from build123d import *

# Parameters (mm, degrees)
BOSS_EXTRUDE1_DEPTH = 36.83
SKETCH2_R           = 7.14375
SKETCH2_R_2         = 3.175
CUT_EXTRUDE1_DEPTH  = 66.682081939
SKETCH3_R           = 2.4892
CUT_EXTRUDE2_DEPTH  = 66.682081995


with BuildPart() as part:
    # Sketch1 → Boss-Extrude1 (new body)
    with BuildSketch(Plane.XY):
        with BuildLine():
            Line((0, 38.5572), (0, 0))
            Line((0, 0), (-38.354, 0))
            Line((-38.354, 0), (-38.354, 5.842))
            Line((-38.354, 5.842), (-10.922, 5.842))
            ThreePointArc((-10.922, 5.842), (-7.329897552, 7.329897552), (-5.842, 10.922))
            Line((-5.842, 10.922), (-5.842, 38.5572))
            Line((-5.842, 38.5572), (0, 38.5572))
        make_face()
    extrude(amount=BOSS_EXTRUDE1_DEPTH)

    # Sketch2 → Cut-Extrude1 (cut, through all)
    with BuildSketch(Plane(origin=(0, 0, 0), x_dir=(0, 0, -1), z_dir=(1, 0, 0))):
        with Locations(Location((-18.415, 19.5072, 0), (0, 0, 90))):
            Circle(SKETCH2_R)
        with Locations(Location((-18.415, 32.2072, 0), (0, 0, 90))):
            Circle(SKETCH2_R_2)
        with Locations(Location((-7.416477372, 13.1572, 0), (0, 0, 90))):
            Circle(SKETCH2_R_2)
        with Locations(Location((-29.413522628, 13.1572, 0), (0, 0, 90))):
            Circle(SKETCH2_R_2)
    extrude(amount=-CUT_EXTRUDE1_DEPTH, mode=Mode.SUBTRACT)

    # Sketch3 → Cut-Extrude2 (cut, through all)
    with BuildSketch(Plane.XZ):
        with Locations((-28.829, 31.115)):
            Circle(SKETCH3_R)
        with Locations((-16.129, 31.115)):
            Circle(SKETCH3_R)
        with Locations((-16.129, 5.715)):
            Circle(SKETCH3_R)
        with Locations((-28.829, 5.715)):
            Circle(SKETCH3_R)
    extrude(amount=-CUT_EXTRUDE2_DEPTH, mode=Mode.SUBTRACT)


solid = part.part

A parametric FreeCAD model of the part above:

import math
import FreeCAD as App
import Part
import Sketcher
from FreeCAD import Vector
Q = App.Units.Quantity

doc = App.newDocument("Part")
params = doc.addObject("Spreadsheet::Sheet", "Params")
for row, (alias, value) in enumerate([
    ("sketch1_radius", "0.2 in"),
    ("sketch1_width", "0.23 in"),
    ("sketch1_width2", "1.08 in"),
    ("sketch1_height", "1.518 in"),
    ("pad1_length", "1.45 in"),
    ("sketch2_diameter", "0.25 in"),
    ("sketch2_diameter2", "0.5625 in"),
    ("sketch3_diameter", "0.196 in"),
], start=1):
    params.set(f"A{row}", alias)
    params.set(f"B{row}", "=" + value)
    params.setAlias(f"B{row}", alias)

body = doc.addObject("PartDesign::Body", "Body")

sketch1 = body.newObject("Sketcher::SketchObject", "Sketch")
sketch1.AttachmentSupport = (doc.getObject("XY_Plane"), [""])
sketch1.MapMode = "FlatFace"
sketch1.addGeometry([
    Part.LineSegment(Vector(0, 0, 0), Vector(0, 39, 0)),
    Part.LineSegment(Vector(0, 39, 0), Vector(-6, 39, 0)),
    Part.LineSegment(Vector(-6, 39, 0), Vector(-6, 11, 0)),
    Part.ArcOfCircle(Part.Circle(Vector(-11, 11, 0), Vector(0, 0, 1), 5), math.radians(-90), math.radians(0)),
    Part.LineSegment(Vector(-11, 6, 0), Vector(-38, 6, 0)),
    Part.LineSegment(Vector(-38, 6, 0), Vector(-38, 0, 0)),
    Part.LineSegment(Vector(-38, 0, 0), Vector(0, 0, 0)),
], False)
sketch1.addConstraint([
    Sketcher.Constraint("Coincident", 0, 2, 1, 1),
    Sketcher.Constraint("Coincident", 1, 2, 2, 1),
    Sketcher.Constraint("Tangent", 2, 2, 3, 2),
    Sketcher.Constraint("Tangent", 3, 1, 4, 1),
    Sketcher.Constraint("Coincident", 4, 2, 5, 1),
    Sketcher.Constraint("Coincident", 5, 2, 6, 1),
    Sketcher.Constraint("Coincident", 6, 2, 0, 1),
    Sketcher.Constraint("Vertical", 0),
    Sketcher.Constraint("Horizontal", 1),
    Sketcher.Constraint("Vertical", 2),
    Sketcher.Constraint("Horizontal", 4),
    Sketcher.Constraint("Vertical", 5),
    Sketcher.Constraint("Horizontal", 6),
    Sketcher.Constraint("Coincident", 6, 2, -1, 1),
    Sketcher.Constraint("Equal", 1, 5),
    Sketcher.Constraint("Radius", 3, Q("0.2 in")),
    Sketcher.Constraint("DistanceX", 1, 2, 1, 1, Q("0.23 in")),
    Sketcher.Constraint("DistanceX", 4, 2, 4, 1, Q("1.08 in")),
    Sketcher.Constraint("DistanceY", 0, 1, 0, 2, Q("1.518 in")),
])
sketch1.setExpression("Constraints[15]", "Params.sketch1_radius")
sketch1.setExpression("Constraints[16]", "Params.sketch1_width")
sketch1.setExpression("Constraints[17]", "Params.sketch1_width2")
sketch1.setExpression("Constraints[18]", "Params.sketch1_height")
pad1 = body.newObject("PartDesign::Pad", "Pad")
pad1.Profile = sketch1
pad1.setExpression("Length", "Params.pad1_length")

sketch2 = body.newObject("Sketcher::SketchObject", "Sketch001")
sketch2.AttachmentSupport = (doc.getObject("YZ_Plane"), [""])
sketch2.MapMode = "FlatFace"
sketch2.addGeometry([
    Part.Circle(Vector(19.5, 18.4, 0), Vector(0, 0, 1), 7.1),
    Part.Circle(Vector(32.2, 18.4, 0), Vector(0, 0, 1), 3.2),
    Part.Circle(Vector(13.2, 7.4, 0), Vector(0, 0, 1), 3.2),
    Part.Circle(Vector(13.2, 29.4, 0), Vector(0, 0, 1), 3.2),
], False)
sketch2.addConstraint([
    Sketcher.Constraint("Equal", 1, 2),
    Sketcher.Constraint("Equal", 2, 3),
    Sketcher.Constraint("Horizontal", 0, 3, 1, 3),
    Sketcher.Constraint("Vertical", 2, 3, 3, 3),
    Sketcher.Constraint("Diameter", 1, Q("0.25 in")),
    Sketcher.Constraint("Diameter", 0, Q("0.5625 in")),
    Sketcher.Constraint("DistanceX", 0, 3, 1, 3, Q("0.5 in")),
    Sketcher.Constraint("DistanceX", 2, 3, 0, 3, Q("0.25 in")),
    Sketcher.Constraint("DistanceX", -1, 1, 0, 3, Q("0.768 in")),
    Sketcher.Constraint("DistanceY", -1, 1, 0, 3, Q("0.725 in")),
    Sketcher.Constraint("DistanceY", -1, 1, 2, 3, Q("7.416477 mm")),
    Sketcher.Constraint("DistanceY", -1, 1, 3, 3, Q("29.413523 mm")),
])
sketch2.setExpression("Constraints[4]", "Params.sketch2_diameter")
sketch2.setExpression("Constraints[5]", "Params.sketch2_diameter2")
pocket1 = body.newObject("PartDesign::Pocket", "Pocket")
pocket1.Profile = sketch2
pocket1.Type = "ThroughAll"

sketch3 = body.newObject("Sketcher::SketchObject", "Sketch002")
sketch3.AttachmentSupport = (doc.getObject("XZ_Plane"), [""])
sketch3.MapMode = "FlatFace"
sketch3.addGeometry([
    Part.Circle(Vector(-28.8, 31.1, 0), Vector(0, 0, 1), 2.5),
    Part.Circle(Vector(-16.1, 31.1, 0), Vector(0, 0, 1), 2.5),
    Part.Circle(Vector(-16.1, 5.7, 0), Vector(0, 0, 1), 2.5),
    Part.Circle(Vector(-28.8, 5.7, 0), Vector(0, 0, 1), 2.5),
], False)
sketch3.addConstraint([
    Sketcher.Constraint("Equal", 0, 1),
    Sketcher.Constraint("Equal", 1, 2),
    Sketcher.Constraint("Equal", 2, 3),
    Sketcher.Constraint("Horizontal", 0, 3, 1, 3),
    Sketcher.Constraint("Horizontal", 2, 3, 3, 3),
    Sketcher.Constraint("Vertical", 1, 3, 2, 3),
    Sketcher.Constraint("Vertical", 0, 3, 3, 3),
    Sketcher.Constraint("Diameter", 0, Q("0.196 in")),
    Sketcher.Constraint("DistanceY", 2, 3, 1, 3, Q("1 in")),
    Sketcher.Constraint("DistanceX", 0, 3, 1, 3, Q("0.5 in")),
    Sketcher.Constraint("DistanceX", 0, 3, -1, 1, Q("1.135 in")),
    Sketcher.Constraint("DistanceY", -1, 1, 0, 3, Q("1.225 in")),
])
sketch3.setExpression("Constraints[7]", "Params.sketch3_diameter")
pocket2 = body.newObject("PartDesign::Pocket", "Pocket001")
pocket2.Profile = sketch3
pocket2.Type = "ThroughAll"

doc.recompute()
